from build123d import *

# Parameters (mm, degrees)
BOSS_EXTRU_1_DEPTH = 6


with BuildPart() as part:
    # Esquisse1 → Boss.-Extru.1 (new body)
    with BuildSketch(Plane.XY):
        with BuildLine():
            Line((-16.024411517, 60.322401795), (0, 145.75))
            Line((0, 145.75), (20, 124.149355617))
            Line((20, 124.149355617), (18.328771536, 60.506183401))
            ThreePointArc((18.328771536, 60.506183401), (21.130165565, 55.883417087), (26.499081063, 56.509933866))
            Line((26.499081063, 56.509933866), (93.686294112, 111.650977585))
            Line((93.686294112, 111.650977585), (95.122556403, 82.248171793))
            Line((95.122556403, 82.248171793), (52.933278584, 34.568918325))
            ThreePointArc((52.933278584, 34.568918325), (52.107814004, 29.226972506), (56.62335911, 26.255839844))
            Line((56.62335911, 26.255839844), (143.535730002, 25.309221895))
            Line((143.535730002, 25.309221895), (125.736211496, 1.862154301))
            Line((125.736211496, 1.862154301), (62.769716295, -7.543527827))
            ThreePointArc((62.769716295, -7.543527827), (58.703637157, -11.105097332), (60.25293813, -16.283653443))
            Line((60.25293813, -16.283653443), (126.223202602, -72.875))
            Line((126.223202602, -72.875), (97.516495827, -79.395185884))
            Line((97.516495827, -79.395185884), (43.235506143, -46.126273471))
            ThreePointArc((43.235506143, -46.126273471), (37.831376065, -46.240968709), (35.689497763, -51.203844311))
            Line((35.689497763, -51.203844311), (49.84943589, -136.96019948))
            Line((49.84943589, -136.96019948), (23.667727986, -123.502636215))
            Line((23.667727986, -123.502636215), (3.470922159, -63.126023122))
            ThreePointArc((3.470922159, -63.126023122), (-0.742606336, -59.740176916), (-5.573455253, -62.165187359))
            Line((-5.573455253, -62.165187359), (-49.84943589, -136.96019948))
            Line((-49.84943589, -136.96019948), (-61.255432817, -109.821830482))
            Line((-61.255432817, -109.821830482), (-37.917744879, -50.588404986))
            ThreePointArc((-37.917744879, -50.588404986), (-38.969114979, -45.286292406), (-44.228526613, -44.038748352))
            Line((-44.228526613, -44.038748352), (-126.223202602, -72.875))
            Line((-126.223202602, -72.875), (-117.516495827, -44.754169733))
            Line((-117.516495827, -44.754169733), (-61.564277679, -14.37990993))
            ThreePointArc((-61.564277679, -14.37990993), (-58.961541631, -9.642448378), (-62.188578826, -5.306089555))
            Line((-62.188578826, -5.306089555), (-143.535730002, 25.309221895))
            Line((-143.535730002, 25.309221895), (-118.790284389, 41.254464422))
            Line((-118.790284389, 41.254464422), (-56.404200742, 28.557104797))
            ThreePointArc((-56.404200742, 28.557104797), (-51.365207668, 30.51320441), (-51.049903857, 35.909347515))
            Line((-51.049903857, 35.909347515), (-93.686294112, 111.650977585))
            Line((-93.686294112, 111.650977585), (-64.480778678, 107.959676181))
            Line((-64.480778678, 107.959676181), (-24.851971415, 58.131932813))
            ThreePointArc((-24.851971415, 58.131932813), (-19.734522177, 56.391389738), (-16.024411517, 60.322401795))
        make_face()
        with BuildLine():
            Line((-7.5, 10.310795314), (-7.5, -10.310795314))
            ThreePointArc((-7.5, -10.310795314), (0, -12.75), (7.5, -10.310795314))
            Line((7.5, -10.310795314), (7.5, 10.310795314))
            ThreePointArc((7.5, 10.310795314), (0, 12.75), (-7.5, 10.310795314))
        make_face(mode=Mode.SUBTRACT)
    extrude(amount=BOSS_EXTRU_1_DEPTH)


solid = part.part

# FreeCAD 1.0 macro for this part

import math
import FreeCAD as App
import Part
import Sketcher

V = App.Vector

doc = App.newDocument("Part")
body = doc.addObject("PartDesign::Body", "Body")

# Sketch on XY plane
sketch1 = body.newObject("Sketcher::SketchObject", "Sketch")
sketch1.AttachmentSupport = (doc.getObject("XY_Plane"), [""])
sketch1.MapMode = "FlatFace"
sketch1.addGeometry([
    Part.LineSegment(V(0, 145.8, 0), V(-16, 60.3, 0)),  # 0
    Part.ArcOfCircle(Part.Circle(V(-20.9, 61.2, 0), V(0, 0, 1), 5), math.radians(-142), math.radians(-11)),  # 1
    Part.LineSegment(V(-24.9, 58.1, 0), V(-64.5, 108, 0)),  # 2
    Part.LineSegment(V(-64.5, 108, 0), V(-93.7, 111.7, 0)),  # 3
    Part.LineSegment(V(-93.7, 111.7, 0), V(-51, 35.9, 0)),  # 4
    Part.ArcOfCircle(Part.Circle(V(-55.4, 33.5, 0), V(0, 0, 1), 5), math.radians(-102), math.radians(29)),  # 5
    Part.LineSegment(V(-56.4, 28.6, 0), V(-118.8, 41.3, 0)),  # 6
    Part.LineSegment(V(-118.8, 41.3, 0), V(-143.5, 25.3, 0)),  # 7
    Part.LineSegment(V(-143.5, 25.3, 0), V(-62.2, -5.3, 0)),  # 8
    Part.ArcOfCircle(Part.Circle(V(-63.9, -10, 0), V(0, 0, 1), 5), math.radians(-62), math.radians(69)),  # 9
    Part.LineSegment(V(-61.6, -14.4, 0), V(-117.5, -44.8, 0)),  # 10
    Part.LineSegment(V(-117.5, -44.8, 0), V(-126.2, -72.9, 0)),  # 11
    Part.LineSegment(V(-126.2, -72.9, 0), V(-44.2, -44, 0)),  # 12
    Part.ArcOfCircle(Part.Circle(V(-42.6, -48.8, 0), V(0, 0, 1), 5), math.radians(-22), math.radians(109)),  # 13
    Part.LineSegment(V(-37.9, -50.6, 0), V(-61.3, -109.8, 0)),  # 14
    Part.LineSegment(V(-61.3, -109.8, 0), V(-49.8, -137, 0)),  # 15
    Part.LineSegment(V(-49.8, -137, 0), V(-5.6, -62.2, 0)),  # 16
    Part.ArcOfCircle(Part.Circle(V(-1.3, -64.7, 0), V(0, 0, 1), 5), math.radians(18), math.radians(149)),  # 17
    Part.LineSegment(V(3.5, -63.1, 0), V(23.7, -123.5, 0)),  # 18
    Part.LineSegment(V(23.7, -123.5, 0), V(49.8, -137, 0)),  # 19
    Part.LineSegment(V(49.8, -137, 0), V(35.7, -51.2, 0)),  # 20
    Part.ArcOfCircle(Part.Circle(V(40.6, -50.4, 0), V(0, 0, 1), 5), math.radians(58), math.radians(189)),  # 21
    Part.LineSegment(V(43.2, -46.1, 0), V(97.5, -79.4, 0)),  # 22
    Part.LineSegment(V(97.5, -79.4, 0), V(126.2, -72.9, 0)),  # 23
    Part.LineSegment(V(126.2, -72.9, 0), V(60.3, -16.3, 0)),  # 24
    Part.ArcOfCircle(Part.Circle(V(63.5, -12.5, 0), V(0, 0, 1), 5), math.radians(98), math.radians(229)),  # 25
    Part.LineSegment(V(62.8, -7.5, 0), V(125.7, 1.9, 0)),  # 26
    Part.LineSegment(V(125.7, 1.9, 0), V(143.5, 25.3, 0)),  # 27
    Part.LineSegment(V(143.5, 25.3, 0), V(56.6, 26.3, 0)),  # 28
    Part.ArcOfCircle(Part.Circle(V(56.7, 31.3, 0), V(0, 0, 1), 5), math.radians(138), math.radians(269)),  # 29
    Part.LineSegment(V(52.9, 34.6, 0), V(95.1, 82.2, 0)),  # 30
    Part.LineSegment(V(95.1, 82.2, 0), V(93.7, 111.7, 0)),  # 31
    Part.LineSegment(V(93.7, 111.7, 0), V(26.5, 56.5, 0)),  # 32
    Part.ArcOfCircle(Part.Circle(V(23.3, 60.4, 0), V(0, 0, 1), 5), math.radians(178), math.radians(309)),  # 33
    Part.LineSegment(V(18.3, 60.5, 0), V(20, 124.1, 0)),  # 34
    Part.LineSegment(V(20, 124.1, 0), V(0, 145.8, 0)),  # 35
    Part.ArcOfCircle(Part.Circle(V(0, 0, 0), V(0, 0, 1), 12.8), math.radians(54), math.radians(126)),  # 36
    Part.LineSegment(V(7.5, 10.3, 0), V(7.5, -10.3, 0)),  # 37
    Part.ArcOfCircle(Part.Circle(V(0, 0, 0), V(0, 0, 1), 12.8), math.radians(-126), math.radians(-54)),  # 38
    Part.LineSegment(V(-7.5, -10.3, 0), V(-7.5, 10.3, 0)),  # 39
], False)
sketch1.addConstraint([
    Sketcher.Constraint("Tangent", 0, 2, 1, 2),
    Sketcher.Constraint("Tangent", 1, 1, 2, 1),
    Sketcher.Constraint("Coincident", 2, 2, 3, 1),
    Sketcher.Constraint("Coincident", 3, 2, 4, 1),
    Sketcher.Constraint("Tangent", 4, 2, 5, 2),
    Sketcher.Constraint("Tangent", 5, 1, 6, 1),
    Sketcher.Constraint("Coincident", 6, 2, 7, 1),
    Sketcher.Constraint("Coincident", 7, 2, 8, 1),
    Sketcher.Constraint("Tangent", 8, 2, 9, 2),
    Sketcher.Constraint("Tangent", 9, 1, 10, 1),
    Sketcher.Constraint("Coincident", 10, 2, 11, 1),
    Sketcher.Constraint("Coincident", 11, 2, 12, 1),
    Sketcher.Constraint("Tangent", 12, 2, 13, 2),
    Sketcher.Constraint("Tangent", 13, 1, 14, 1),
    Sketcher.Constraint("Coincident", 14, 2, 15, 1),
    Sketcher.Constraint("Coincident", 15, 2, 16, 1),
    Sketcher.Constraint("Tangent", 16, 2, 17, 2),
    Sketcher.Constraint("Tangent", 17, 1, 18, 1),
    Sketcher.Constraint("Coincident", 18, 2, 19, 1),
    Sketcher.Constraint("Coincident", 19, 2, 20, 1),
    Sketcher.Constraint("Tangent", 20, 2, 21, 2),
    Sketcher.Constraint("Tangent", 21, 1, 22, 1),
    Sketcher.Constraint("Coincident", 22, 2, 23, 1),
    Sketcher.Constraint("Coincident", 23, 2, 24, 1),
    Sketcher.Constraint("Tangent", 24, 2, 25, 2),
    Sketcher.Constraint("Tangent", 25, 1, 26, 1),
    Sketcher.Constraint("Coincident", 26, 2, 27, 1),
    Sketcher.Constraint("Coincident", 27, 2, 28, 1),
    Sketcher.Constraint("Tangent", 28, 2, 29, 2),
    Sketcher.Constraint("Tangent", 29, 1, 30, 1),
    Sketcher.Constraint("Coincident", 30, 2, 31, 1),
    Sketcher.Constraint("Coincident", 31, 2, 32, 1),
    Sketcher.Constraint("Tangent", 32, 2, 33, 2),
    Sketcher.Constraint("Tangent", 33, 1, 34, 1),
    Sketcher.Constraint("Coincident", 34, 2, 35, 1),
    Sketcher.Constraint("Coincident", 35, 2, 0, 1),
    Sketcher.Constraint("Coincident", 36, 1, 37, 1),
    Sketcher.Constraint("Coincident", 37, 2, 38, 2),
    Sketcher.Constraint("Coincident", 38, 1, 39, 1),
    Sketcher.Constraint("Coincident", 39, 2, 36, 2),
    Sketcher.Constraint("Vertical", 37),
    Sketcher.Constraint("Vertical", 39),
    Sketcher.Constraint("Coincident", 36, 3, -1, 1),
    Sketcher.Constraint("Coincident", 38, 3, -1, 1),
    Sketcher.Constraint("Equal", 1, 5),
    Sketcher.Constraint("Equal", 5, 9),
    Sketcher.Constraint("Equal", 9, 13),
    Sketcher.Constraint("Equal", 13, 17),
    Sketcher.Constraint("Equal", 17, 21),
    Sketcher.Constraint("Equal", 21, 25),
    Sketcher.Constraint("Equal", 25, 29),
    Sketcher.Constraint("Equal", 29, 33),
    Sketcher.Constraint("Equal", 36, 38),
    Sketcher.Constraint("Symmetric", 15, 2, 19, 2, -2),
    Sketcher.Constraint("Symmetric", 11, 2, 23, 2, -2),
    Sketcher.Constraint("Symmetric", 7, 2, 27, 2, -2),
    Sketcher.Constraint("Symmetric", 3, 2, 31, 2, -2),
    Sketcher.Constraint("PointOnObject", 35, 2, -2),
    Sketcher.Constraint("Horizontal", 37, 2, 38, 1),
    Sketcher.Constraint("Equal", 0, 4),
    Sketcher.Constraint("Equal", 2, 6),
    Sketcher.Constraint("Equal", 3, 7),
    Sketcher.Constraint("Equal", 4, 8),
    Sketcher.Constraint("Equal", 6, 10),
    Sketcher.Constraint("Equal", 7, 11),
    Sketcher.Constraint("Equal", 8, 12),
    Sketcher.Constraint("Equal", 10, 14),
    Sketcher.Constraint("Equal", 11, 15),
    Sketcher.Constraint("Equal", 12, 16),
    Sketcher.Constraint("Equal", 14, 18),
    Sketcher.Constraint("Equal", 15, 19),
    Sketcher.Constraint("Equal", 16, 20),
    Sketcher.Constraint("Equal", 18, 22),
    Sketcher.Constraint("Equal", 19, 23),
    Sketcher.Constraint("Equal", 20, 24),
    Sketcher.Constraint("Equal", 22, 26),
    Sketcher.Constraint("Equal", 23, 27),
    Sketcher.Constraint("Equal", 24, 28),
    Sketcher.Constraint("Equal", 26, 30),
    Sketcher.Constraint("Equal", 27, 31),
    Sketcher.Constraint("Equal", 28, 32),
    Sketcher.Constraint("Equal", 30, 34),
    Sketcher.Constraint("Equal", 31, 35),
    Sketcher.Constraint("Radius", 1, 5.0),
    Sketcher.Constraint("Radius", 36, 12.75),
    Sketcher.Constraint("DistanceX", -1, 1, 34, 2, 20.0),
    Sketcher.Constraint("DistanceX", 38, 1, 37, 2, 15.0),
    Sketcher.Constraint("DistanceY", -1, 1, 35, 2, 145.75),
    Sketcher.Constraint("DistanceX", 5, 3, -1, 1, 55.407002),
    Sketcher.Constraint("DistanceY", 11, 2, -1, 1, 72.875),
    Sketcher.Constraint("DistanceY", 1, 1, 33, 3, 2.242999),
    Sketcher.Constraint("DistanceY", 15, 2, 17, 3, 72.248001),
    Sketcher.Constraint("DistanceX", 20, 2, 22, 2, 61.826998),
    Sketcher.Constraint("DistanceY", 32, 2, 33, 3, 3.864998),
    Sketcher.Constraint("DistanceX", 13, 3, -1, 1, 42.569698),
    Sketcher.Constraint("DistanceY", 17, 3, -1, 1, 64.712198),
    Sketcher.Constraint("DistanceX", -1, 1, 21, 3, 40.6227),
    Sketcher.Constraint("DistanceX", -1, 1, 25, 3, 63.5084),
    Sketcher.Constraint("DistanceY", -1, 1, 0, 2, 60.322402),
    Sketcher.Constraint("DistanceX", 5, 1, -1, 1, 56.404201),
    Sketcher.Constraint("DistanceX", 5, 3, 1, 3, 34.468299),
    Sketcher.Constraint("DistanceY", 21, 3, 1, 3, 111.633501),
    Sketcher.Constraint("DistanceY", 2, 2, 3, 2, 3.691301),
    Sketcher.Constraint("DistanceX", 8, 2, 9, 1, 0.624301),
    Sketcher.Constraint("DistanceY", 12, 2, 9, 3, 34.053099),
    Sketcher.Constraint("DistanceY", 25, 3, 28, 2, 38.744501),
    Sketcher.Constraint("Distance", 2, 63.665111),
])
pad1 = body.newObject("PartDesign::Pad", "Pad")
pad1.Profile = sketch1
pad1.Length = 6

doc.recompute()
